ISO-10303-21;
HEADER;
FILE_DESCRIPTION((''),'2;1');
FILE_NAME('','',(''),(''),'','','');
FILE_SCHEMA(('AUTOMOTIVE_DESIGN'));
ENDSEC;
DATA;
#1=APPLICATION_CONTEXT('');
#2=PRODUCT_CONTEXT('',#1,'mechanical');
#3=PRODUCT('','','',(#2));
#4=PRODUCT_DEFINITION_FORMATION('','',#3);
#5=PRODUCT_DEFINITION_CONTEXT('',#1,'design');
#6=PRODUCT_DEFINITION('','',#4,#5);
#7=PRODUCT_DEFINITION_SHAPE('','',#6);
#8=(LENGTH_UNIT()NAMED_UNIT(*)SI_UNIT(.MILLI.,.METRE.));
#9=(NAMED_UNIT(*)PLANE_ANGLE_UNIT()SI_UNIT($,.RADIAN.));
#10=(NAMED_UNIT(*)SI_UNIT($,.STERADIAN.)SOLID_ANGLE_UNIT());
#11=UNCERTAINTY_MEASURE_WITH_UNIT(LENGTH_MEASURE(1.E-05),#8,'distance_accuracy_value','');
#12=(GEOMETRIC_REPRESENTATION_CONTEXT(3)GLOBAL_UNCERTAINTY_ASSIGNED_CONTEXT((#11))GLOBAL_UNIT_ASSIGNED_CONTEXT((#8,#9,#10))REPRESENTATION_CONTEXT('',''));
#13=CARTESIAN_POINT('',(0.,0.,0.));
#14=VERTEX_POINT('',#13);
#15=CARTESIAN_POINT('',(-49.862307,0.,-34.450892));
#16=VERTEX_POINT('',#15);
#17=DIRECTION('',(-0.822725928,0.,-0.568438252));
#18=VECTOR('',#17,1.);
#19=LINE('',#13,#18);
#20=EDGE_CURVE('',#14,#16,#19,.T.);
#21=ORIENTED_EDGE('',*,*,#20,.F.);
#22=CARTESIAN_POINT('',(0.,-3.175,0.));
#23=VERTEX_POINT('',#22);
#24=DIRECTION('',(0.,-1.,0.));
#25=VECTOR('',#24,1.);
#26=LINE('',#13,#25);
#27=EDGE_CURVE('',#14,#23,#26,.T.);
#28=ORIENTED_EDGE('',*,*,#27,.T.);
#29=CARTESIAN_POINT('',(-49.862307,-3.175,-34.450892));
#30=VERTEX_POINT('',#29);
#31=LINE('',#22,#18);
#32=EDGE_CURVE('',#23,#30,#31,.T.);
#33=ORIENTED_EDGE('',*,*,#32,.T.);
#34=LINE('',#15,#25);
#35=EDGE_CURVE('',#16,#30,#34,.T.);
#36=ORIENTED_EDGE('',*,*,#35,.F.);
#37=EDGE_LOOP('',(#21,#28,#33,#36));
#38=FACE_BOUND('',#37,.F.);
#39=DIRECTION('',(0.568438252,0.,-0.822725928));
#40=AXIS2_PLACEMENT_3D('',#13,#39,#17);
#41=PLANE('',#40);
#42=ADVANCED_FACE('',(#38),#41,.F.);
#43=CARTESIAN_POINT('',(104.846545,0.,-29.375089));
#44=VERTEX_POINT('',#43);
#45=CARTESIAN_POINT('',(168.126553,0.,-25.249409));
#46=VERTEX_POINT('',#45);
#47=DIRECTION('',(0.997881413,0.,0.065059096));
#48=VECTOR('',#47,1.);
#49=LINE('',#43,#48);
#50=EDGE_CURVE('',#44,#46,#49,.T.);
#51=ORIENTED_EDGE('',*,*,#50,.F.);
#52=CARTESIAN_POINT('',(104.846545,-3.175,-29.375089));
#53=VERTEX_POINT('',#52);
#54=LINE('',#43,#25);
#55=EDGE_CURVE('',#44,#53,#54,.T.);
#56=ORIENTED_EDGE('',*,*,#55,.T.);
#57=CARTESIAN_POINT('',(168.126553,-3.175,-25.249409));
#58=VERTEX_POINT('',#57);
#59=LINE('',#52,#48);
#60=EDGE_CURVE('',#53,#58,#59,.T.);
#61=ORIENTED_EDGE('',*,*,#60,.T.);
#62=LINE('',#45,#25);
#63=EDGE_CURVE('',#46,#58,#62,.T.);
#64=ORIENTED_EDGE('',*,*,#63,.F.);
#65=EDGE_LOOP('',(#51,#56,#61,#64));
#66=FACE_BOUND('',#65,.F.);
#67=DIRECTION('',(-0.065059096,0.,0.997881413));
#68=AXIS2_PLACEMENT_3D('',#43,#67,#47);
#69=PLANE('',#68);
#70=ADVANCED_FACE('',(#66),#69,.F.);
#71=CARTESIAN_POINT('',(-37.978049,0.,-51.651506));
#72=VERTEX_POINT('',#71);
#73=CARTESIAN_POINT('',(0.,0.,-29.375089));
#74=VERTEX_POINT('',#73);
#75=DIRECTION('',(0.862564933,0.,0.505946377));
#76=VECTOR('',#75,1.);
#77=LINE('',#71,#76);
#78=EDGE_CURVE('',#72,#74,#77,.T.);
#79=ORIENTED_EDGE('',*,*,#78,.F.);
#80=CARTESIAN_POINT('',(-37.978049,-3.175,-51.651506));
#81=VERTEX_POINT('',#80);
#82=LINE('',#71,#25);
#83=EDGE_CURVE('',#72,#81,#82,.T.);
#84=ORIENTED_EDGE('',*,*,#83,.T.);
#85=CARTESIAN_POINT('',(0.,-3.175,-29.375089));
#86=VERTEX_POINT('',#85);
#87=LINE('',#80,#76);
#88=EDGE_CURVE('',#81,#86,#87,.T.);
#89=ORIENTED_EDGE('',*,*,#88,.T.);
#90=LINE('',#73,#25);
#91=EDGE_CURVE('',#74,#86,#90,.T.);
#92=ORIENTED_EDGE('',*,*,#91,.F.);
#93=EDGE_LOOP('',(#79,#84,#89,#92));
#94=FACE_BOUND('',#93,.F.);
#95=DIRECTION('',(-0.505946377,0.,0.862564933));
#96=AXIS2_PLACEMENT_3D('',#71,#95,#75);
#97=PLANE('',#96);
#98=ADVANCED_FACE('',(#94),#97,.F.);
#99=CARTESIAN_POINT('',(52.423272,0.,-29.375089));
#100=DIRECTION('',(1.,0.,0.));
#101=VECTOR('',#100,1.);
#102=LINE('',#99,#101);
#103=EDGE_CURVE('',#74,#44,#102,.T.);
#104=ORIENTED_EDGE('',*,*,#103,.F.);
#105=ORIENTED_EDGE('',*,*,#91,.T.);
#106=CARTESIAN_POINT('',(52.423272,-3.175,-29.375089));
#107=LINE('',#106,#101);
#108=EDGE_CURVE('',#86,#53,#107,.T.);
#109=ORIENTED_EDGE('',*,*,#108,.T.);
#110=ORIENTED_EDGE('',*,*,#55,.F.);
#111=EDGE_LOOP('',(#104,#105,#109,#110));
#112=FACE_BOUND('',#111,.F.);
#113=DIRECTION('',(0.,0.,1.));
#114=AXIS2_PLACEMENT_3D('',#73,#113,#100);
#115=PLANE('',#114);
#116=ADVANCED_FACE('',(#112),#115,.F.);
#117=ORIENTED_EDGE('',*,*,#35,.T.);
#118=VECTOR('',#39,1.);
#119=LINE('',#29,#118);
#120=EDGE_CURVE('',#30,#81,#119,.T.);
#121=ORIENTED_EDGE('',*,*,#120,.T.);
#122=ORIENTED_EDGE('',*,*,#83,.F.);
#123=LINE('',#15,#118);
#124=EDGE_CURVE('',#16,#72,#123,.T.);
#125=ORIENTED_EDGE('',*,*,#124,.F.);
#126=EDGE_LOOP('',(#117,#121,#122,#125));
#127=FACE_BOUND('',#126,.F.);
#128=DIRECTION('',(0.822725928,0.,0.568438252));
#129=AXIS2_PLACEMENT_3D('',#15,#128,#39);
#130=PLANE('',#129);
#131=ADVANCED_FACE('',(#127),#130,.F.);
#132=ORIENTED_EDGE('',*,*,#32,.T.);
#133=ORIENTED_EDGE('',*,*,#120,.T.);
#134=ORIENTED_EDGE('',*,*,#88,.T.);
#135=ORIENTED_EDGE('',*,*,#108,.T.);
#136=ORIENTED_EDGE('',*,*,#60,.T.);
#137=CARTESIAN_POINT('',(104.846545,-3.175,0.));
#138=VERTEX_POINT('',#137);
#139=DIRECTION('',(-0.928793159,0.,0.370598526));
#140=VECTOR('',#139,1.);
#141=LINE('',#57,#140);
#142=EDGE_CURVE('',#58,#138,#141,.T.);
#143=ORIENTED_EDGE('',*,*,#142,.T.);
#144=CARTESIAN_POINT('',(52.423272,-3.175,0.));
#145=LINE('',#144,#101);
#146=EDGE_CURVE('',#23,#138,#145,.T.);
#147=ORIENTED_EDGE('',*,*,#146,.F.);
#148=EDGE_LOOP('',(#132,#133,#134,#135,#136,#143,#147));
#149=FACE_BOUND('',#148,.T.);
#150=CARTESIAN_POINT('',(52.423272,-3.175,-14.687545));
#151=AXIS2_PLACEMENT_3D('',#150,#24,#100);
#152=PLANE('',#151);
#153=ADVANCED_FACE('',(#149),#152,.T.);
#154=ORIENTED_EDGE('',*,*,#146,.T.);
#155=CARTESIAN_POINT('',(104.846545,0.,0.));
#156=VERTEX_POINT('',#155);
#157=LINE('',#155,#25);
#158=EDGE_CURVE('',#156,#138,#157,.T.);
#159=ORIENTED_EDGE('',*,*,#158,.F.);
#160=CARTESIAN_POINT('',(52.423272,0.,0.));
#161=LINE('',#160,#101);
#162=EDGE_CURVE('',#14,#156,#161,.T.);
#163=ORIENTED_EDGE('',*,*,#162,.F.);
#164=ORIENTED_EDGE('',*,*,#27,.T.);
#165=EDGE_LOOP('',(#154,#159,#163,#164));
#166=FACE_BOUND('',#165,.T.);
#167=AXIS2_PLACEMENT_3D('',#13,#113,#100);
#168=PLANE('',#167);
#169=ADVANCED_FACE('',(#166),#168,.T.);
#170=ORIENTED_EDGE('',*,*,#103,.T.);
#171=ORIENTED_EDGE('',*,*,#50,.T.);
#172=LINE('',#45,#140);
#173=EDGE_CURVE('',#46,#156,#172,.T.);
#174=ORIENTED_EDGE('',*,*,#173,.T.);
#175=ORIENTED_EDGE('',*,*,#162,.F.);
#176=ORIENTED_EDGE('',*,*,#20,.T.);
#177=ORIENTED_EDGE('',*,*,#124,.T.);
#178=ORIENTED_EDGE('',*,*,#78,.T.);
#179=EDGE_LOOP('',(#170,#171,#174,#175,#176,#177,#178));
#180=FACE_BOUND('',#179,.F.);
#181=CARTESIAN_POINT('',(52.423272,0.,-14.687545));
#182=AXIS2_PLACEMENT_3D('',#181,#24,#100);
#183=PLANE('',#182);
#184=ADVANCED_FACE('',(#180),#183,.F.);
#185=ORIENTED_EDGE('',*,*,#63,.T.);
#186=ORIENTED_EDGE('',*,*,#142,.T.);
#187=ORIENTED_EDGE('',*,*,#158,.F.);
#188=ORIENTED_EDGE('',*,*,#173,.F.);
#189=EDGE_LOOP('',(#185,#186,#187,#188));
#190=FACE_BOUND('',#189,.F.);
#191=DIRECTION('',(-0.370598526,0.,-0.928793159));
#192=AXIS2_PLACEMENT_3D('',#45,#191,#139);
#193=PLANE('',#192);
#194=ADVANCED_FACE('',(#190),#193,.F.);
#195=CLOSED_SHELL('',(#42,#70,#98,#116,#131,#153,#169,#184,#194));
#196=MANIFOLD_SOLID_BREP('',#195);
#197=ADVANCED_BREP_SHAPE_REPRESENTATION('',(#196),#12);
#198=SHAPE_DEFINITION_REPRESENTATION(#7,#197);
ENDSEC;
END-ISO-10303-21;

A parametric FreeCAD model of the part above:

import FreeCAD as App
import Part
import Sketcher
from FreeCAD import Vector
Q = App.Units.Quantity


def add_polygon(sketch, points):
    """Adds a closed chain of lines whose ends are joined by coincident constraints."""
    first, n = sketch.GeometryCount, len(points)
    for a, b in zip(points, points[1:] + points[:1]):
        sketch.addGeometry(Part.LineSegment(App.Vector(*a, 0), App.Vector(*b, 0)), False)
    for i in range(n):
        sketch.addConstraint(Sketcher.Constraint("Coincident", first + i, 2, first + (i + 1) % n, 1))

doc = App.newDocument("Part")
body = doc.addObject("PartDesign::Body", "Body")

# Sketch on XZ plane
sketch1 = body.newObject("Sketcher::SketchObject", "Sketch")
sketch1.AttachmentSupport = (doc.getObject("XZ_Plane"), [""])
sketch1.MapMode = "FlatFace"
add_polygon(sketch1, [(0, -29), (105, -29), (168, -25), (105, 0), (0, 0), (-50, -34), (-38, -52)])  # lines 0-6
sketch1.addConstraint([
    Sketcher.Constraint("Horizontal", 0),
    Sketcher.Constraint("Horizontal", 3),
    Sketcher.Constraint("Coincident", 3, 2, -1, 1),
    Sketcher.Constraint("PointOnObject", 6, 2, -2),
    Sketcher.Constraint("Perpendicular", 4, 5),
    Sketcher.Constraint("Vertical", 0, 2, 2, 2),
    Sketcher.Constraint("DistanceX", 0, 1, 0, 2, 104.846545),
    Sketcher.Constraint("DistanceY", 0, 2, -1, 1, 29.375089),
    Sketcher.Constraint("DistanceY", 1, 2, -1, 1, 25.249409),
    Sketcher.Constraint("DistanceX", 5, 2, -1, 1, 37.978049),
    Sketcher.Constraint("DistanceX", 0, 2, 1, 2, 63.280009),
    Sketcher.Constraint("DistanceX", 4, 2, 0, 2, 154.708851),
    Sketcher.Constraint("Distance", 4, 60.606218),
])
pad1 = body.newObject("PartDesign::Pad", "Pad")
pad1.Profile = sketch1
pad1.Length = Q("0.125 in")

doc.recompute()
